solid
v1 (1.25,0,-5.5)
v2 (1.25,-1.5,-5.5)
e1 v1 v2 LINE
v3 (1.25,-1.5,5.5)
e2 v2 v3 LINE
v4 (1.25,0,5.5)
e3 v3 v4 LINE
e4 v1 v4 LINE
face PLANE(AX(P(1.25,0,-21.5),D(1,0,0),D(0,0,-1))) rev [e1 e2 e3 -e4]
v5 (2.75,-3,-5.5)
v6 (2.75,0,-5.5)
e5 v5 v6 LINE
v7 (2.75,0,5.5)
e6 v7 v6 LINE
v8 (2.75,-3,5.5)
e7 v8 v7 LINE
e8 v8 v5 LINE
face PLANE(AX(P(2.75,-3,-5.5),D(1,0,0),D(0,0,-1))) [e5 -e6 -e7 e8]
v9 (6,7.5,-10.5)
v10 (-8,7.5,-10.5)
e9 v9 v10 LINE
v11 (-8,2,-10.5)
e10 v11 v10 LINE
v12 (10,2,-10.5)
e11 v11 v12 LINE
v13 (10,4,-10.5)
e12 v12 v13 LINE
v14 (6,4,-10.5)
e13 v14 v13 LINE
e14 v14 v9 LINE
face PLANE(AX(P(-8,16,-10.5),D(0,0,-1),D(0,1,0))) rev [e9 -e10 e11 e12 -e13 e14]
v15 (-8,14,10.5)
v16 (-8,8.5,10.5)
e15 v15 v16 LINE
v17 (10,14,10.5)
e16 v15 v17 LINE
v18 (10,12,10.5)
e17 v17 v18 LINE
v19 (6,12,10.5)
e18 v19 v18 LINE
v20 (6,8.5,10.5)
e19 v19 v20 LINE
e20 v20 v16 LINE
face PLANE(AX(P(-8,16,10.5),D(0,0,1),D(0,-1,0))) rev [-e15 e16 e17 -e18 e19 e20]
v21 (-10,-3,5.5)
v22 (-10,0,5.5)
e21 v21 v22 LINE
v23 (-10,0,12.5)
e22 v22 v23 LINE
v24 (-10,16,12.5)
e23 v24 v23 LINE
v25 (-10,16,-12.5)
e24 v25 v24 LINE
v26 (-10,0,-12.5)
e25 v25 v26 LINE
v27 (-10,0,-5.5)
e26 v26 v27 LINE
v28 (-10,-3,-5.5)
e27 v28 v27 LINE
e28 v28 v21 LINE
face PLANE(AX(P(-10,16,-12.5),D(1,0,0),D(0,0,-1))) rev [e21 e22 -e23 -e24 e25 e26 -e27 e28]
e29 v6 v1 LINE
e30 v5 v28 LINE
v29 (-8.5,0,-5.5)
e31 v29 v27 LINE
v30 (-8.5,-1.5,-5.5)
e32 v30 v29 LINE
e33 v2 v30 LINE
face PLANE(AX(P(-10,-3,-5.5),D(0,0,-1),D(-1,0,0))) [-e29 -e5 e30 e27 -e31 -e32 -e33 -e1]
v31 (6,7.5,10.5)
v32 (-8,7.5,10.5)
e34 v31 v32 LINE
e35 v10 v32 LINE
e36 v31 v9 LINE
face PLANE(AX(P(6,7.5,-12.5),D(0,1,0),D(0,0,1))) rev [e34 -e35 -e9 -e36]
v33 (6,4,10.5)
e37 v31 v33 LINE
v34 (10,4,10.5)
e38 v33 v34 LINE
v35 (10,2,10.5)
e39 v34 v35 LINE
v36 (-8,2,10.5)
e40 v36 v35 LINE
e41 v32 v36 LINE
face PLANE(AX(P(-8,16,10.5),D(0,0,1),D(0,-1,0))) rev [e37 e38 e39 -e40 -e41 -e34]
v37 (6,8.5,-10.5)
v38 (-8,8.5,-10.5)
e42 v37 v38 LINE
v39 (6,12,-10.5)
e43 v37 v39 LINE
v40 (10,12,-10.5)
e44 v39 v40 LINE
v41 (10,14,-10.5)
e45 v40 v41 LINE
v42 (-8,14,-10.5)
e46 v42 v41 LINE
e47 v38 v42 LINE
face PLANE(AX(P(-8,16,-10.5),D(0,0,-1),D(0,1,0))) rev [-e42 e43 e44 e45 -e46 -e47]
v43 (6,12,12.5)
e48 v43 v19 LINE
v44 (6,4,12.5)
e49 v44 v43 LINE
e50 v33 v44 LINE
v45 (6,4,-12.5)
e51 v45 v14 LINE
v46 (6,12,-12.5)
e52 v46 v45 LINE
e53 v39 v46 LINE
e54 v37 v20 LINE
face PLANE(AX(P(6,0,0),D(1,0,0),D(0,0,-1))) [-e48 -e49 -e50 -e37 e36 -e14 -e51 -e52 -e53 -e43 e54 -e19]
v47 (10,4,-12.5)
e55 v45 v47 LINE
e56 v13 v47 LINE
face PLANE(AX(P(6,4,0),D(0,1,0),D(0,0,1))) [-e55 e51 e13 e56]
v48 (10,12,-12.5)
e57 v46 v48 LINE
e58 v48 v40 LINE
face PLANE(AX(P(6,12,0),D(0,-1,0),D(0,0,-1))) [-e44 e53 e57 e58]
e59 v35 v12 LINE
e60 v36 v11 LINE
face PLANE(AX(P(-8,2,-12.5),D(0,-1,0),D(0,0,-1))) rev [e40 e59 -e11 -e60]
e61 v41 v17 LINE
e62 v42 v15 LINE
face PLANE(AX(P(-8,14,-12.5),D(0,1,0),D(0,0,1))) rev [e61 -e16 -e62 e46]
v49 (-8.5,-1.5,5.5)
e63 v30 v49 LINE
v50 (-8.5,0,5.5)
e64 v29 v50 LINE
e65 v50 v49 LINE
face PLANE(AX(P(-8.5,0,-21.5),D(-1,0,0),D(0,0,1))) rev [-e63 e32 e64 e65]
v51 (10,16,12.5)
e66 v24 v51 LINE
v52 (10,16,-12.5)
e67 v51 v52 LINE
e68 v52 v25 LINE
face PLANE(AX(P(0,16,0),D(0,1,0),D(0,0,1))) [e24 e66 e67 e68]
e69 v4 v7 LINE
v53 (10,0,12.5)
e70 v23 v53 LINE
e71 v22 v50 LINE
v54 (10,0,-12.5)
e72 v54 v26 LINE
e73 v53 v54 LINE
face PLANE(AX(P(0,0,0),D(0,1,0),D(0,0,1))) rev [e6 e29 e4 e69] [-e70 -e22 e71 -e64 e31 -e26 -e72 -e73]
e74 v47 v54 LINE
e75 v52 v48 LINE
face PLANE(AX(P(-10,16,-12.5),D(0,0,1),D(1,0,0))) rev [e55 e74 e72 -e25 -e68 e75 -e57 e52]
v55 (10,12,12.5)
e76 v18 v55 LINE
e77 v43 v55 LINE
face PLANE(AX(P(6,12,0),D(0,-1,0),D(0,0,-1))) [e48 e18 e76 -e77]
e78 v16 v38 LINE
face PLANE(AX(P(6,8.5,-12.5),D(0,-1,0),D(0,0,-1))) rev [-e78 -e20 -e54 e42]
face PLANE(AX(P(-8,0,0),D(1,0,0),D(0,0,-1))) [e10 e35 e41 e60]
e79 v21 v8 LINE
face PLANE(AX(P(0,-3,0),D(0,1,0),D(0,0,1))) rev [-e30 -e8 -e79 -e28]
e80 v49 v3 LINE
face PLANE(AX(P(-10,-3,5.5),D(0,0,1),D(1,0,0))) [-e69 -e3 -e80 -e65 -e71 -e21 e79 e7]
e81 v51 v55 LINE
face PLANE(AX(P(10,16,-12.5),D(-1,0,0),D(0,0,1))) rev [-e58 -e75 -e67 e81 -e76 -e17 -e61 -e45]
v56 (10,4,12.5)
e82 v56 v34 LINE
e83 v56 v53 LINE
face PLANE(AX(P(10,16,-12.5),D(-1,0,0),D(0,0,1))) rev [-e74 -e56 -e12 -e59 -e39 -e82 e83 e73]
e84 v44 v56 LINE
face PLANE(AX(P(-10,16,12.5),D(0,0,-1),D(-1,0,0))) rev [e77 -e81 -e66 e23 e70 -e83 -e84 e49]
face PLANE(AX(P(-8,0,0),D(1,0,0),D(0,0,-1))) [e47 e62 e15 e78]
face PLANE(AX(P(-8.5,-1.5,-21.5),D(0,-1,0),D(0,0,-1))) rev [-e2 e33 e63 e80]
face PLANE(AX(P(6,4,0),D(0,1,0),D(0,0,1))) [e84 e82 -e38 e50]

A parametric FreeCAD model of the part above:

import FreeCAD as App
import Part
import Sketcher
Q = App.Units.Quantity


def add_polygon(sketch, points):
    """Adds a closed chain of lines whose ends are joined by coincident constraints."""
    first, n = sketch.GeometryCount, len(points)
    for a, b in zip(points, points[1:] + points[:1]):
        sketch.addGeometry(Part.LineSegment(App.Vector(*a, 0), App.Vector(*b, 0)), False)
    for i in range(n):
        sketch.addConstraint(Sketcher.Constraint("Coincident", first + i, 2, first + (i + 1) % n, 1))

doc = App.newDocument("Part")
body = doc.addObject("PartDesign::Body", "Body")

# Sketch on XZ plane
sketch1 = body.newObject("Sketcher::SketchObject", "Sketch")
sketch1.AttachmentSupport = (doc.getObject("XZ_Plane"), [""])
sketch1.MapMode = "FlatFace"
add_polygon(sketch1, [(-10, -12.5), (-10, 12.5), (10, 12.5), (10, -12.5)])  # lines 0-3
sketch1.addConstraint([
    Sketcher.Constraint("Vertical", 0),
    Sketcher.Constraint("Horizontal", 1),
    Sketcher.Constraint("Vertical", 2),
    Sketcher.Constraint("Horizontal", 3),
    Sketcher.Constraint("Symmetric", 0, 2, 2, 2, -1, 1),
    Sketcher.Constraint("DistanceX", 1, 1, 1, 2, Q("20 mm")),
    Sketcher.Constraint("DistanceY", 0, 1, 0, 2, Q("25 mm")),
])
pad1 = body.newObject("PartDesign::Pad", "Pad")
pad1.Profile = sketch1
pad1.Length = 16
pad1.Reversed = True

# Sketch on YZ plane
sketch2 = body.newObject("Sketcher::SketchObject", "Sketch001")
sketch2.AttachmentSupport = (doc.getObject("YZ_Plane"), [""])
sketch2.MapMode = "FlatFace"
sketch2.AttachmentOffset = App.Placement(App.Vector(0, 0, 10), App.Rotation())
add_polygon(sketch2, [(14, 10.5), (2, 10.5), (2, -10.5), (14, -10.5)])  # lines 0-3
sketch2.addConstraint([
    Sketcher.Constraint("Horizontal", 0),
    Sketcher.Constraint("Vertical", 1),
    Sketcher.Constraint("Horizontal", 2),
    Sketcher.Constraint("Vertical", 3),
    Sketcher.Constraint("DistanceX", 0, 2, 0, 1, Q("12 mm")),
    Sketcher.Constraint("DistanceY", 1, 2, 1, 1, Q("21 mm")),
    Sketcher.Constraint("DistanceX", -1, 1, 0, 2, Q("2 mm")),
    Sketcher.Constraint("DistanceY", -1, 1, 0, 2, Q("10.5 mm")),
])
pocket1 = body.newObject("PartDesign::Pocket", "Pocket")
pocket1.Profile = sketch2
pocket1.Length = 18

# Sketch on YZ plane
sketch3 = body.newObject("Sketcher::SketchObject", "Sketch002")
sketch3.AttachmentSupport = (doc.getObject("YZ_Plane"), [""])
sketch3.MapMode = "FlatFace"
sketch3.AttachmentOffset = App.Placement(App.Vector(0, 0, -10), App.Rotation())
add_polygon(sketch3, [(8.5, 10.5), (7.5, 10.5), (7.5, -10.5), (8.5, -10.5)])  # lines 0-3
sketch3.addConstraint([
    Sketcher.Constraint("Horizontal", 0),
    Sketcher.Constraint("Vertical", 1),
    Sketcher.Constraint("Horizontal", 2),
    Sketcher.Constraint("Vertical", 3),
    Sketcher.Constraint("DistanceX", 0, 2, 0, 1, Q("1 mm")),
    Sketcher.Constraint("DistanceY", 1, 2, 1, 1, Q("21 mm")),
    Sketcher.Constraint("DistanceX", -1, 1, 0, 2, Q("7.5 mm")),
    Sketcher.Constraint("DistanceY", -1, 1, 0, 2, Q("10.5 mm")),
])
pad2 = body.newObject("PartDesign::Pad", "Pad001")
pad2.Profile = sketch3
pad2.Length = 16

# Sketch on YZ plane
sketch4 = body.newObject("Sketcher::SketchObject", "Sketch003")
sketch4.AttachmentSupport = (doc.getObject("YZ_Plane"), [""])
sketch4.MapMode = "FlatFace"
sketch4.AttachmentOffset = App.Placement(App.Vector(0, 0, 10), App.Rotation())
add_polygon(sketch4, [(12, 12.5), (4, 12.5), (4, 10.5), (12, 10.5)])  # lines 0-3
add_polygon(sketch4, [(12, -10.5), (4, -10.5), (4, -12.5), (12, -12.5)])  # lines 4-7
sketch4.addConstraint([
    Sketcher.Constraint("Horizontal", 0),
    Sketcher.Constraint("Vertical", 1),
    Sketcher.Constraint("Horizontal", 2),
    Sketcher.Constraint("Vertical", 3),
    Sketcher.Constraint("Horizontal", 4),
    Sketcher.Constraint("Vertical", 5),
    Sketcher.Constraint("Horizontal", 6),
    Sketcher.Constraint("Vertical", 7),
    Sketcher.Constraint("Symmetric", 1, 2, 4, 2, -1),
    Sketcher.Constraint("Symmetric", 3, 2, 6, 2, -1),
    Sketcher.Constraint("DistanceX", 0, 2, 0, 1, Q("8 mm")),
    Sketcher.Constraint("DistanceY", 1, 2, 1, 1, Q("2 mm")),
    Sketcher.Constraint("DistanceX", -1, 1, 0, 2, Q("4 mm")),
    Sketcher.Constraint("DistanceY", 4, 2, 1, 2, Q("21 mm")),
])
pad3 = body.newObject("PartDesign::Pad", "Pad002")
pad3.Profile = sketch4
pad3.Length = 4

# Sketch on YZ plane
sketch5 = body.newObject("Sketcher::SketchObject", "Sketch004")
sketch5.AttachmentSupport = (doc.getObject("YZ_Plane"), [""])
sketch5.MapMode = "FlatFace"
sketch5.AttachmentOffset = App.Placement(App.Vector(0, 0, 14), App.Rotation())
add_polygon(sketch5, [(12, 12.5), (4, 12.5), (4, 10.5), (12, 10.5)])  # lines 0-3
add_polygon(sketch5, [(12, -10.5), (4, -10.5), (4, -12.5), (12, -12.5)])  # lines 4-7
sketch5.addConstraint([
    Sketcher.Constraint("Horizontal", 0),
    Sketcher.Constraint("Vertical", 1),
    Sketcher.Constraint("Horizontal", 2),
    Sketcher.Constraint("Vertical", 3),
    Sketcher.Constraint("Horizontal", 4),
    Sketcher.Constraint("Vertical", 5),
    Sketcher.Constraint("Horizontal", 6),
    Sketcher.Constraint("Vertical", 7),
    Sketcher.Constraint("Symmetric", 1, 2, 4, 2, -1),
    Sketcher.Constraint("Symmetric", 3, 2, 6, 2, -1),
    Sketcher.Constraint("DistanceX", 0, 2, 0, 1, Q("8 mm")),
    Sketcher.Constraint("DistanceY", 1, 2, 1, 1, Q("2 mm")),
    Sketcher.Constraint("DistanceX", -1, 1, 0, 2, Q("4 mm")),
    Sketcher.Constraint("DistanceY", 4, 2, 1, 2, Q("21 mm")),
])
pocket2 = body.newObject("PartDesign::Pocket", "Pocket001")
pocket2.Profile = sketch5
pocket2.Length = 8

# Sketch on XZ plane
sketch6 = body.newObject("Sketcher::SketchObject", "Sketch005")
sketch6.AttachmentSupport = (doc.getObject("XZ_Plane"), [""])
sketch6.MapMode = "FlatFace"
add_polygon(sketch6, [(-10, -5.5), (-10, 5.5), (2.75, 5.5), (2.75, -5.5)])  # lines 0-3
sketch6.addConstraint([
    Sketcher.Constraint("Vertical", 0),
    Sketcher.Constraint("Horizontal", 1),
    Sketcher.Constraint("Vertical", 2),
    Sketcher.Constraint("Horizontal", 3),
    Sketcher.Constraint("DistanceY", 0, 1, 0, 2, Q("11 mm")),
    Sketcher.Constraint("DistanceX", 0, 2, -1, 1, Q("10 mm")),
    Sketcher.Constraint("DistanceX", 1, 1, 1, 2, Q("12.75 mm")),
    Sketcher.Constraint("DistanceY", -1, 1, 0, 2, Q("5.5 mm")),
])
pad4 = body.newObject("PartDesign::Pad", "Pad003")
pad4.Profile = sketch6
pad4.Length = 3

# Sketch on XY plane
sketch7 = body.newObject("Sketcher::SketchObject", "Sketch006")
sketch7.AttachmentSupport = (doc.getObject("XY_Plane"), [""])
sketch7.MapMode = "FlatFace"
add_polygon(sketch7, [(-8.5, 0), (-8.5, -1.5), (1.25, -1.5), (1.25, 0)])  # lines 0-3
sketch7.addConstraint([
    Sketcher.Constraint("Vertical", 0),
    Sketcher.Constraint("Horizontal", 1),
    Sketcher.Constraint("Vertical", 2),
    Sketcher.Constraint("Horizontal", 3),
    Sketcher.Constraint("PointOnObject", 2, 2, -1),
    Sketcher.Constraint("DistanceY", 0, 2, 0, 1, Q("1.5 mm")),
    Sketcher.Constraint("DistanceX", 1, 1, 1, 2, Q("9.75 mm")),
    Sketcher.Constraint("DistanceX", 0, 2, -1, 1, Q("8.5 mm")),
])
pocket3 = body.newObject("PartDesign::Pocket", "Pocket002")
pocket3.Profile = sketch7
pocket3.Length = 43
pocket3.Midplane = True

doc.recompute()
